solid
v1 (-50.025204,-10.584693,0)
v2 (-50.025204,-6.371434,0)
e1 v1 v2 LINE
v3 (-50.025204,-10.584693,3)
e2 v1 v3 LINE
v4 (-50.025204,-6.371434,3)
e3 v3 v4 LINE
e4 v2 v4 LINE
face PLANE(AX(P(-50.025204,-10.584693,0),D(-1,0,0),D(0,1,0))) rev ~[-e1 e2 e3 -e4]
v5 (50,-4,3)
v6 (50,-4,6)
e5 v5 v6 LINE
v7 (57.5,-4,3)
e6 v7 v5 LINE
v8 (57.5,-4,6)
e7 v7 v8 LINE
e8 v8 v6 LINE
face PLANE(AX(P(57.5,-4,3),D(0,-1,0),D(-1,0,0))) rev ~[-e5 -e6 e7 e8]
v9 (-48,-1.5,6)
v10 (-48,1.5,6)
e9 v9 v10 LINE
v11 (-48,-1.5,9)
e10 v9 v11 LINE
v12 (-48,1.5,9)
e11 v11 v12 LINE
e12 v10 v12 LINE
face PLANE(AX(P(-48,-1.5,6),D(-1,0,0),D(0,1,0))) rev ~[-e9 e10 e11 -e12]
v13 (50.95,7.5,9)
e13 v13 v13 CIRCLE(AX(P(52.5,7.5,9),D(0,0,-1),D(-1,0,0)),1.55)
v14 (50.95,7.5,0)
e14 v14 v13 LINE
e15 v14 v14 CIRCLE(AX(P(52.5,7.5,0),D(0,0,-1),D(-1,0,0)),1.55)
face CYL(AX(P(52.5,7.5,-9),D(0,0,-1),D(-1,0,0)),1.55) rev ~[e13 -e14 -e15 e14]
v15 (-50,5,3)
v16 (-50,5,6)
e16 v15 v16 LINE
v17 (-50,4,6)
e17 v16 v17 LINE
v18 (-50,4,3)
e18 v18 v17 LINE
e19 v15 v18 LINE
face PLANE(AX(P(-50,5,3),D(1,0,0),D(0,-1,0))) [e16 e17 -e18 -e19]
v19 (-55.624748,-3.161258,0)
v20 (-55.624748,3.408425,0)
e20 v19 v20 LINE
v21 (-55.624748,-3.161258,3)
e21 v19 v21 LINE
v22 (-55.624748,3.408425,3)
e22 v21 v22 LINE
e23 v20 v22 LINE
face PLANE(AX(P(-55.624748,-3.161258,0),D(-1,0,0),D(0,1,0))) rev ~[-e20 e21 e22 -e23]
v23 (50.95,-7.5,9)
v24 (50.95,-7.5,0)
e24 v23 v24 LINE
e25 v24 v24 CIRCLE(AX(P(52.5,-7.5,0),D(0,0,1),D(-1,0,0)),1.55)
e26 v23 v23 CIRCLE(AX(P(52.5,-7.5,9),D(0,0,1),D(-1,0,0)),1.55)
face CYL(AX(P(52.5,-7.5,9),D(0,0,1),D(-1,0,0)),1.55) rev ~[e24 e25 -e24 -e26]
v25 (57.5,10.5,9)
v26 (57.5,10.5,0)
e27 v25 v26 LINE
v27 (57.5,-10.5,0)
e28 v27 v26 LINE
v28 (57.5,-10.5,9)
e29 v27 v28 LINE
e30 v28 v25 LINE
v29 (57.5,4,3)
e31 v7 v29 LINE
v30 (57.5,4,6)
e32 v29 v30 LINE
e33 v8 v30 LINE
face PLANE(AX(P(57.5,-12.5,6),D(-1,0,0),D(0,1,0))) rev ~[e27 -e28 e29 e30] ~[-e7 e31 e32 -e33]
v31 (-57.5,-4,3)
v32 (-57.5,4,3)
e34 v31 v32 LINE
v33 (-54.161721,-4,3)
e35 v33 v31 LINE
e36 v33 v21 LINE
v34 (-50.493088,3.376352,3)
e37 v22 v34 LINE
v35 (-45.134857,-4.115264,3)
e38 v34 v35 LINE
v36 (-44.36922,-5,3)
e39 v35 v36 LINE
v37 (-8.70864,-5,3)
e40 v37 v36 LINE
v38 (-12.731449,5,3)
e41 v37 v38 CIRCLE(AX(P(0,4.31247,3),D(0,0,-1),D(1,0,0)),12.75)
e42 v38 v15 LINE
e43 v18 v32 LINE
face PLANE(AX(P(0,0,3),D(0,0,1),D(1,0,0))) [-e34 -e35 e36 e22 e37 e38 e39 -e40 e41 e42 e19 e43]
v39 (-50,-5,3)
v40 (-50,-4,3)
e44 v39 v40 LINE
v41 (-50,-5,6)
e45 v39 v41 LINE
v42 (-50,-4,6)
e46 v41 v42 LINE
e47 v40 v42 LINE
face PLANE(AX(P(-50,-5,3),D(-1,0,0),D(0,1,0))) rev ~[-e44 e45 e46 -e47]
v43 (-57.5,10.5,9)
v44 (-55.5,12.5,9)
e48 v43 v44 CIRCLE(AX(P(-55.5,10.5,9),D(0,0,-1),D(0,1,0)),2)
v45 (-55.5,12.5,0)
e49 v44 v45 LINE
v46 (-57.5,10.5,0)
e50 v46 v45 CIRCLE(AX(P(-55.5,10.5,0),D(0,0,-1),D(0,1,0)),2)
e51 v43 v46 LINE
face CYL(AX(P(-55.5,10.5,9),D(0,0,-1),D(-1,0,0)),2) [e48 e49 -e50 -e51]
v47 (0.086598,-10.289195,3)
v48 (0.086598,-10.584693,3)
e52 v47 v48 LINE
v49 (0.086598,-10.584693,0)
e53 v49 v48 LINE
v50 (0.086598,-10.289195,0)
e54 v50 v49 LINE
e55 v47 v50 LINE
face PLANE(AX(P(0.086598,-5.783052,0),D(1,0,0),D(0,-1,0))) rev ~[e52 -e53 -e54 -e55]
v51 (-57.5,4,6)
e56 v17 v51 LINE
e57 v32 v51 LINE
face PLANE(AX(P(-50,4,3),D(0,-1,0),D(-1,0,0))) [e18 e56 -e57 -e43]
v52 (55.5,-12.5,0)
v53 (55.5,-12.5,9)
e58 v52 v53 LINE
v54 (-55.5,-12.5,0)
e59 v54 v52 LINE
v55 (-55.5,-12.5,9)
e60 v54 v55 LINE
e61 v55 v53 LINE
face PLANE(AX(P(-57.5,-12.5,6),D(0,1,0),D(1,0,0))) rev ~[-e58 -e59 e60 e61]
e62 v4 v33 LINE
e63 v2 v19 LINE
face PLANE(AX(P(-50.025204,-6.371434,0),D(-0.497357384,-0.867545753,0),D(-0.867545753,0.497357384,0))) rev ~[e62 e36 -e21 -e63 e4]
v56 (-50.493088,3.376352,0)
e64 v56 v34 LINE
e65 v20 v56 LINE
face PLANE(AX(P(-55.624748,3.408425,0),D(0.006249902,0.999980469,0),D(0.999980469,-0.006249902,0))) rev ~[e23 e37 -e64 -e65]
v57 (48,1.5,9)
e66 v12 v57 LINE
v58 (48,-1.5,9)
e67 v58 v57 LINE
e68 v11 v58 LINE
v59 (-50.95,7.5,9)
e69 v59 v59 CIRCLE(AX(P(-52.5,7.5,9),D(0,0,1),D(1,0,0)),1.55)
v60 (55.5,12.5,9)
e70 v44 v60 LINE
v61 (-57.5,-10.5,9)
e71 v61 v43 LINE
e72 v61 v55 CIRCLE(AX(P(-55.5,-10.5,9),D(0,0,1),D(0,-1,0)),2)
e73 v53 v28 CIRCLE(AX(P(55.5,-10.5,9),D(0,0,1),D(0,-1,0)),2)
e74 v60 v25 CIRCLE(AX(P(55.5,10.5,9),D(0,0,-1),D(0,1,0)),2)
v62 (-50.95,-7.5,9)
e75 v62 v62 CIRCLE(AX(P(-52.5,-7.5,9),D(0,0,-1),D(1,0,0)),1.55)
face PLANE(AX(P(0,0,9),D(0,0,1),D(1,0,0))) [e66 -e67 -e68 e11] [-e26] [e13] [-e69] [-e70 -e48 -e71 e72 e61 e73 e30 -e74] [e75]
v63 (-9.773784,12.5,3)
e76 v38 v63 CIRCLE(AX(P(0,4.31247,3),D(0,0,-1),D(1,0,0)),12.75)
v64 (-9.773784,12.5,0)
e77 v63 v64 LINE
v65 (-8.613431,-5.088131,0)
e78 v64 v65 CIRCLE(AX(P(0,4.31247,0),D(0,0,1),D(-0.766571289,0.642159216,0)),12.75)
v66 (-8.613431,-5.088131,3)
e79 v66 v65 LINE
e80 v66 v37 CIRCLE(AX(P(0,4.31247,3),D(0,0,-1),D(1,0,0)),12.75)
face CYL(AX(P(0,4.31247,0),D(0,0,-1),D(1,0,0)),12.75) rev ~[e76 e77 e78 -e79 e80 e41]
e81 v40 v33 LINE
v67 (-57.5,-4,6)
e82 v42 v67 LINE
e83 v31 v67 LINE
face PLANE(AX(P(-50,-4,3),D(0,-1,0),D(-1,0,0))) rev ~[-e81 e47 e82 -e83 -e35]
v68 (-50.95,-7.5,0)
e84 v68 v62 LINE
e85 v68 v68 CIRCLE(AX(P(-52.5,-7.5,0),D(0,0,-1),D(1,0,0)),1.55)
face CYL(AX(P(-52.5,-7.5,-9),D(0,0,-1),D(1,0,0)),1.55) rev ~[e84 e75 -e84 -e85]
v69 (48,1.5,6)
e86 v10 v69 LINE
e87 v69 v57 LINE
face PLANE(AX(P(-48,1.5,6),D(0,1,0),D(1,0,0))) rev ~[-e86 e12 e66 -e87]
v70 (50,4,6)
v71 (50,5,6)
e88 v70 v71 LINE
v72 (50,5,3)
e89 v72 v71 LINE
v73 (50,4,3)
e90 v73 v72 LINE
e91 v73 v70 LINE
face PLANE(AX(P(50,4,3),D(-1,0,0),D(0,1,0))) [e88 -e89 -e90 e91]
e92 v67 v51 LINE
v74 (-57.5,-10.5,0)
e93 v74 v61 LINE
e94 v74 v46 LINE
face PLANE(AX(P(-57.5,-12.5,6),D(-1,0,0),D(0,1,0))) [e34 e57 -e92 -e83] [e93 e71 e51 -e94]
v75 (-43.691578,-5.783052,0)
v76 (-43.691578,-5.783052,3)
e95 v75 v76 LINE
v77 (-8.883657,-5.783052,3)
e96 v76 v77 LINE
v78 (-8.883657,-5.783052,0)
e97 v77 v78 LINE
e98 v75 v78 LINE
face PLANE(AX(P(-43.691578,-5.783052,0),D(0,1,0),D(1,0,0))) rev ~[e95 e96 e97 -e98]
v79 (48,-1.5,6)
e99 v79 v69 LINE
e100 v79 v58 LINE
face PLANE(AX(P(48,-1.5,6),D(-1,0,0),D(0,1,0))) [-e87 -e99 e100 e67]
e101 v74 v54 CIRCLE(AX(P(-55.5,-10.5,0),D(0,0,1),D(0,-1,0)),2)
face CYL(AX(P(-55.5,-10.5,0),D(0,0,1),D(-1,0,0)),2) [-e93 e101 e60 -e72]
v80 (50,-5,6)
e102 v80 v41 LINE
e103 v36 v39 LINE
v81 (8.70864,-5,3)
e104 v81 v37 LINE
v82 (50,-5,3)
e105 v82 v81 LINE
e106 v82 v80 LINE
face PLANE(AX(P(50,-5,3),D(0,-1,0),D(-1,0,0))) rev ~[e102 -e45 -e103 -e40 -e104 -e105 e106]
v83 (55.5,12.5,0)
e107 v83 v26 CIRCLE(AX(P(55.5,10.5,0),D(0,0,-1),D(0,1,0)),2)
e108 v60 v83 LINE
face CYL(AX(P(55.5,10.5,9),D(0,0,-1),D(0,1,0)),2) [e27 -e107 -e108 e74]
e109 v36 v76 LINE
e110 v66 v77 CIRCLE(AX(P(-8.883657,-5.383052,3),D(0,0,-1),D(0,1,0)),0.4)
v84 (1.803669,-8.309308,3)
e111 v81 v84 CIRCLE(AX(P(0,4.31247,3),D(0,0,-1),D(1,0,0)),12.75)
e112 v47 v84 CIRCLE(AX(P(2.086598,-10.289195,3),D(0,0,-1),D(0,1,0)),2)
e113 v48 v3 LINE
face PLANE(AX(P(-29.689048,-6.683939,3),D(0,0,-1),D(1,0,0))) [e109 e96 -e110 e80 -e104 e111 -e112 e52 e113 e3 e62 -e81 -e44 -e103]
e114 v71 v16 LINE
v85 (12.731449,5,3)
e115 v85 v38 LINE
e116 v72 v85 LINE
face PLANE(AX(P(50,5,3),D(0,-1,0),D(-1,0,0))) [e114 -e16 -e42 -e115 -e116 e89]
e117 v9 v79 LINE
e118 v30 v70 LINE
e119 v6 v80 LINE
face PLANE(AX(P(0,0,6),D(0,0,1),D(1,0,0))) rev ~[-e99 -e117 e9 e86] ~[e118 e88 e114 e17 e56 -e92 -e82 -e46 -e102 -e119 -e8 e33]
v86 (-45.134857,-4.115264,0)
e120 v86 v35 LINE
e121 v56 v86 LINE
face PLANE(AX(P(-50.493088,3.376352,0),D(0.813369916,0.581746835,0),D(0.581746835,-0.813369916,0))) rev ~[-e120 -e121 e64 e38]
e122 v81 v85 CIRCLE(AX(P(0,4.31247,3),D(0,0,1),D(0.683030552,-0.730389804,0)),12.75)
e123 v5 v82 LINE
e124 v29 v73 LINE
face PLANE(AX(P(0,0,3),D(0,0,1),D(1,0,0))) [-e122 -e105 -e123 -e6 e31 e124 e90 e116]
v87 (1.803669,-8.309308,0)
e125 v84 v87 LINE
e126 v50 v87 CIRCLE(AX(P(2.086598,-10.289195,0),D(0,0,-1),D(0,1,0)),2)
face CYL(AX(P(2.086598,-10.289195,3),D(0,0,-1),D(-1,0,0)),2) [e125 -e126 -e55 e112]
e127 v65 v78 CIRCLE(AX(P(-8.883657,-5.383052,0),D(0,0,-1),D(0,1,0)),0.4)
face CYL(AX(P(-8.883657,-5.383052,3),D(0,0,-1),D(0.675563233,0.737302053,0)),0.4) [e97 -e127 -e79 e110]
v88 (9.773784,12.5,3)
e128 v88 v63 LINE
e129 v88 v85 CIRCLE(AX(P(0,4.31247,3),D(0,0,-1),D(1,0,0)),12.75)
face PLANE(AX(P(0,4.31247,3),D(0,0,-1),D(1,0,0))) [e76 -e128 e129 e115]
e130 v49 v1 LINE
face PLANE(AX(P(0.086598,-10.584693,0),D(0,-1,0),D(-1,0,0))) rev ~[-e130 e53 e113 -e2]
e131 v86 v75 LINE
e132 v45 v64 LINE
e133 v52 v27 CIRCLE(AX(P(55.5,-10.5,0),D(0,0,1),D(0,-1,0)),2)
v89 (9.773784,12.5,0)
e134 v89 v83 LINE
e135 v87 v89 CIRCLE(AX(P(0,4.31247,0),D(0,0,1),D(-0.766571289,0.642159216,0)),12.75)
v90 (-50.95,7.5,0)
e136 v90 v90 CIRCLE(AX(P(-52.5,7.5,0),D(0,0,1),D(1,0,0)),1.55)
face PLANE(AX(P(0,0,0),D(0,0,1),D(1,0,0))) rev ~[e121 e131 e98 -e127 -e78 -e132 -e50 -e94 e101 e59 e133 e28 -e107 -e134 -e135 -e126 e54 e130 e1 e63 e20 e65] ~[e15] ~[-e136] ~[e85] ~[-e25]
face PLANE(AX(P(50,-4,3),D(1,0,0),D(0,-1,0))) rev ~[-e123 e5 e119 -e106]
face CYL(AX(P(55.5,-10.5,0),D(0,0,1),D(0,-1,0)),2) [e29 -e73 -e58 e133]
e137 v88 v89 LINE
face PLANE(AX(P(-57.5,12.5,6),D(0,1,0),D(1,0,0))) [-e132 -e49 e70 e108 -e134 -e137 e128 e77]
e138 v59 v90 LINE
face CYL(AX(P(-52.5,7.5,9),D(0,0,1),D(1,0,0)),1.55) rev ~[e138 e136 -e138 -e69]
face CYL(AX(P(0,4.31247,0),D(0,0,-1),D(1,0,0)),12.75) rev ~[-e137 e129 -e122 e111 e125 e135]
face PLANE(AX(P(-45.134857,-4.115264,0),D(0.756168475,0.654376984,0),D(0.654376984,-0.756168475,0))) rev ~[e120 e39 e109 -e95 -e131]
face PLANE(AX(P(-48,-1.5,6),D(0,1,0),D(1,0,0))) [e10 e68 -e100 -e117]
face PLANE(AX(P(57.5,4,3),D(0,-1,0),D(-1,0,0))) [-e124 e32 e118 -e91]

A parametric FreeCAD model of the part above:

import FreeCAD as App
import Part
import Sketcher
from FreeCAD import Vector
Q = App.Units.Quantity


def edges_at(feature, points):
    """Names of the edges that pass closest to the given points."""
    edges = feature.Shape.Edges
    near = lambda p: min(range(len(edges)), key=lambda i: edges[i].distToShape(Part.Vertex(*p))[0])
    return sorted({f"Edge{near(p) + 1}" for p in points})

doc = App.newDocument("Part")
body = doc.addObject("PartDesign::Body", "Body")

# Sketch on XY plane
sketch1 = body.newObject("Sketcher::SketchObject", "Sketch")
sketch1.AttachmentSupport = (doc.getObject("XY_Plane"), [""])
sketch1.MapMode = "FlatFace"
sketch1.addGeometry([
    Part.LineSegment(Vector(-58, 12, 0), Vector(-58, -12, 0)),
    Part.LineSegment(Vector(-58, -12, 0), Vector(58, -12, 0)),
    Part.LineSegment(Vector(58, -12, 0), Vector(58, 12, 0)),
    Part.LineSegment(Vector(58, 12, 0), Vector(-58, 12, 0)),
], False)
sketch1.addConstraint([
    Sketcher.Constraint("Coincident", 0, 2, 1, 1),
    Sketcher.Constraint("Coincident", 1, 2, 2, 1),
    Sketcher.Constraint("Coincident", 2, 2, 3, 1),
    Sketcher.Constraint("Coincident", 3, 2, 0, 1),
    Sketcher.Constraint("Vertical", 0),
    Sketcher.Constraint("Horizontal", 1),
    Sketcher.Constraint("Vertical", 2),
    Sketcher.Constraint("Horizontal", 3),
    Sketcher.Constraint("Symmetric", 0, 2, 2, 2, -1, 1),
    Sketcher.Constraint("DistanceX", 1, 1, 1, 2, Q("115 mm")),
    Sketcher.Constraint("DistanceY", 0, 2, 0, 1, Q("25 mm")),
])
pad1 = body.newObject("PartDesign::Pad", "Pad")
pad1.Profile = sketch1
pad1.Length = 3

# Sketch on XY plane
sketch2 = body.newObject("Sketcher::SketchObject", "Sketch001")
sketch2.AttachmentSupport = (doc.getObject("XY_Plane"), [""])
sketch2.MapMode = "FlatFace"
sketch2.AttachmentOffset = App.Placement(Vector(0, 0, 3), App.Rotation())
sketch2.addGeometry([
    Part.LineSegment(Vector(57.5, 12.5, 0), Vector(-57.5, 12.5, 0)),  # 0
    Part.LineSegment(Vector(-57.5, 12.5, 0), Vector(-57.5, 4, 0)),  # 1
    Part.LineSegment(Vector(-57.5, 4, 0), Vector(-50, 4, 0)),  # 2
    Part.LineSegment(Vector(-50, 4, 0), Vector(-50, 5, 0)),  # 3
    Part.LineSegment(Vector(-50, 5, 0), Vector(50, 5, 0)),  # 4
    Part.LineSegment(Vector(50, 5, 0), Vector(50, 4, 0)),  # 5
    Part.LineSegment(Vector(50, 4, 0), Vector(57.5, 4, 0)),  # 6
    Part.LineSegment(Vector(57.5, 4, 0), Vector(57.5, 12.5, 0)),  # 7
    Part.LineSegment(Vector(-57.5, -12.5, 0), Vector(57.5, -12.5, 0)),  # 8
    Part.LineSegment(Vector(57.5, -12.5, 0), Vector(57.5, -4, 0)),  # 9
    Part.LineSegment(Vector(57.5, -4, 0), Vector(50, -4, 0)),  # 10
    Part.LineSegment(Vector(50, -4, 0), Vector(50, -5, 0)),  # 11
    Part.LineSegment(Vector(50, -5, 0), Vector(-50, -5, 0)),  # 12
    Part.LineSegment(Vector(-50, -5, 0), Vector(-50, -4, 0)),  # 13
    Part.LineSegment(Vector(-50, -4, 0), Vector(-57.5, -4, 0)),  # 14
    Part.LineSegment(Vector(-57.5, -4, 0), Vector(-57.5, -12.5, 0)),  # 15
], False)
sketch2.addConstraint([
    Sketcher.Constraint("Coincident", 0, 2, 1, 1),
    Sketcher.Constraint("Coincident", 1, 2, 2, 1),
    Sketcher.Constraint("Coincident", 2, 2, 3, 1),
    Sketcher.Constraint("Coincident", 3, 2, 4, 1),
    Sketcher.Constraint("Coincident", 4, 2, 5, 1),
    Sketcher.Constraint("Coincident", 5, 2, 6, 1),
    Sketcher.Constraint("Coincident", 6, 2, 7, 1),
    Sketcher.Constraint("Coincident", 7, 2, 0, 1),
    Sketcher.Constraint("Coincident", 8, 2, 9, 1),
    Sketcher.Constraint("Coincident", 9, 2, 10, 1),
    Sketcher.Constraint("Coincident", 10, 2, 11, 1),
    Sketcher.Constraint("Coincident", 11, 2, 12, 1),
    Sketcher.Constraint("Coincident", 12, 2, 13, 1),
    Sketcher.Constraint("Coincident", 13, 2, 14, 1),
    Sketcher.Constraint("Coincident", 14, 2, 15, 1),
    Sketcher.Constraint("Coincident", 15, 2, 8, 1),
    Sketcher.Constraint("Horizontal", 0),
    Sketcher.Constraint("Vertical", 1),
    Sketcher.Constraint("Horizontal", 2),
    Sketcher.Constraint("Vertical", 3),
    Sketcher.Constraint("Horizontal", 4),
    Sketcher.Constraint("Vertical", 5),
    Sketcher.Constraint("Horizontal", 6),
    Sketcher.Constraint("Vertical", 7),
    Sketcher.Constraint("Horizontal", 8),
    Sketcher.Constraint("Vertical", 9),
    Sketcher.Constraint("Horizontal", 10),
    Sketcher.Constraint("Vertical", 11),
    Sketcher.Constraint("Horizontal", 12),
    Sketcher.Constraint("Vertical", 13),
    Sketcher.Constraint("Horizontal", 14),
    Sketcher.Constraint("Vertical", 15),
    Sketcher.Constraint("Symmetric", 0, 2, 8, 2, -1, 1),
    Sketcher.Constraint("Symmetric", 2, 2, 10, 2, -1, 1),
    Sketcher.Constraint("Symmetric", 4, 2, 12, 2, -1, 1),
    Sketcher.Constraint("Symmetric", 6, 2, 14, 2, -1, 1),
    Sketcher.Constraint("Symmetric", 2, 2, 5, 2, -2),
    Sketcher.Constraint("Vertical", 7, 2, 8, 2),
    Sketcher.Constraint("DistanceX", 0, 2, 0, 1, Q("115 mm")),
    Sketcher.Constraint("DistanceX", 4, 1, 4, 2, Q("100 mm")),
    Sketcher.Constraint("DistanceY", 3, 1, 3, 2, Q("1 mm")),
    Sketcher.Constraint("DistanceY", 1, 2, 1, 1, Q("8.5 mm")),
    Sketcher.Constraint("DistanceY", -1, 1, 1, 2, Q("4 mm")),
])
pad2 = body.newObject("PartDesign::Pad", "Pad001")
pad2.Profile = sketch2
pad2.Length = 3

# Sketch on XY plane
sketch3 = body.newObject("Sketcher::SketchObject", "Sketch002")
sketch3.AttachmentSupport = (doc.getObject("XY_Plane"), [""])
sketch3.MapMode = "FlatFace"
sketch3.AttachmentOffset = App.Placement(Vector(0, 0, 6), App.Rotation())
sketch3.addGeometry([
    Part.LineSegment(Vector(-57.5, 12.5, 0), Vector(-57.5, -12.5, 0)),  # 0
    Part.LineSegment(Vector(-57.5, -12.5, 0), Vector(57.5, -12.5, 0)),  # 1
    Part.LineSegment(Vector(57.5, -12.5, 0), Vector(57.5, 12.5, 0)),  # 2
    Part.LineSegment(Vector(57.5, 12.5, 0), Vector(-57.5, 12.5, 0)),  # 3
    Part.LineSegment(Vector(48, -1.5, 0), Vector(-48, -1.5, 0)),  # 4
    Part.LineSegment(Vector(-48, -1.5, 0), Vector(-48, 1.5, 0)),  # 5
    Part.LineSegment(Vector(-48, 1.5, 0), Vector(48, 1.5, 0)),  # 6
    Part.LineSegment(Vector(48, 1.5, 0), Vector(48, -1.5, 0)),  # 7
], False)
sketch3.addConstraint([
    Sketcher.Constraint("Coincident", 0, 2, 1, 1),
    Sketcher.Constraint("Coincident", 1, 2, 2, 1),
    Sketcher.Constraint("Coincident", 2, 2, 3, 1),
    Sketcher.Constraint("Coincident", 3, 2, 0, 1),
    Sketcher.Constraint("Coincident", 4, 2, 5, 1),
    Sketcher.Constraint("Coincident", 5, 2, 6, 1),
    Sketcher.Constraint("Coincident", 6, 2, 7, 1),
    Sketcher.Constraint("Coincident", 7, 2, 4, 1),
    Sketcher.Constraint("Vertical", 0),
    Sketcher.Constraint("Horizontal", 1),
    Sketcher.Constraint("Vertical", 2),
    Sketcher.Constraint("Horizontal", 3),
    Sketcher.Constraint("Horizontal", 4),
    Sketcher.Constraint("Vertical", 5),
    Sketcher.Constraint("Horizontal", 6),
    Sketcher.Constraint("Vertical", 7),
    Sketcher.Constraint("Symmetric", 0, 2, 2, 2, -1, 1),
    Sketcher.Constraint("Symmetric", 4, 2, 6, 2, -1, 1),
    Sketcher.Constraint("DistanceX", 1, 1, 1, 2, Q("115 mm")),
    Sketcher.Constraint("DistanceX", 4, 2, 4, 1, Q("96 mm")),
    Sketcher.Constraint("DistanceY", 0, 2, 0, 1, Q("25 mm")),
    Sketcher.Constraint("DistanceY", 5, 1, 5, 2, Q("3 mm")),
])
pad3 = body.newObject("PartDesign::Pad", "Pad002")
pad3.Profile = sketch3
pad3.Length = 3

# Sketch on XY plane
sketch4 = body.newObject("Sketcher::SketchObject", "Sketch003")
sketch4.AttachmentSupport = (doc.getObject("XY_Plane"), [""])
sketch4.MapMode = "FlatFace"
sketch4.AttachmentOffset = App.Placement(Vector(0, 0, 9), App.Rotation())
sketch4.addGeometry(Part.Circle(Vector(-52.5, 7.5, 0), Vector(0, 0, 1), 1.6), False)
sketch4.addConstraint([
    Sketcher.Constraint("Diameter", 0, Q("3.1 mm")),
    Sketcher.Constraint("DistanceX", 0, 3, -1, 1, Q("52.5 mm")),
    Sketcher.Constraint("DistanceY", -1, 1, 0, 3, Q("7.5 mm")),
])
pocket1 = body.newObject("PartDesign::Pocket", "Pocket")
pocket1.Profile = sketch4
pocket1.Type = "ThroughAll"
doc.recompute()

polarpattern = body.newObject("PartDesign::PolarPattern", "PolarPattern")
polarpattern.Originals = [pocket1]
polarpattern.Axis = (doc.getObject("Y_Axis"), [""])
polarpattern.Angle = 360
polarpattern.Occurrences = 2
body.Tip = polarpattern
doc.recompute()

polarpattern2 = body.newObject("PartDesign::PolarPattern", "PolarPattern001")
polarpattern2.Originals = [pocket1]
polarpattern2.Axis = (doc.getObject("X_Axis"), [""])
polarpattern2.Angle = 360
polarpattern2.Occurrences = 2
body.Tip = polarpattern2
doc.recompute()

polarpattern3 = body.newObject("PartDesign::PolarPattern", "PolarPattern002")
polarpattern3.Originals = [pocket1]
polarpattern3.Axis = (doc.getObject("Z_Axis"), [""])
polarpattern3.Angle = 360
polarpattern3.Occurrences = 2
body.Tip = polarpattern3
doc.recompute()

fillet = body.newObject("PartDesign::Fillet", "Fillet")
fillet.Base = (polarpattern3, edges_at(polarpattern3, [
    (57.5, 12.5, 4.5),
    (57.5, 12.5, 4.5),
    (57.5, 12.5, 4.5),
    (57.5, -12.5, 4.5),
    (-57.5, 12.5, 4.5),
    (-57.5, -12.5, 4.5),
]))
fillet.Radius = 2

# Sketch on XY plane
sketch5 = body.newObject("Sketcher::SketchObject", "Sketch004")
sketch5.AttachmentSupport = (doc.getObject("XY_Plane"), [""])
sketch5.MapMode = "FlatFace"
sketch5.addGeometry(Part.Circle(Vector(0, 4, 0), Vector(0, 0, 1), 13), False)
sketch5.addConstraint([
    Sketcher.Constraint("PointOnObject", 0, 3, -2),
    Sketcher.Constraint("Diameter", 0, Q("25.5 mm")),
    Sketcher.Constraint("DistanceY", -1, 1, 0, 3, Q("4.31247 mm")),
])
pocket2 = body.newObject("PartDesign::Pocket", "Pocket001")
pocket2.Profile = sketch5
pocket2.Length = 3
pocket2.Reversed = True

# Sketch on XY plane
sketch6 = body.newObject("Sketcher::SketchObject", "Sketch005")
sketch6.AttachmentSupport = (doc.getObject("XY_Plane"), [""])
sketch6.MapMode = "FlatFace"
sketch6.addGeometry([
    Part.LineSegment(Vector(0.1, -10.6, 0), Vector(-50, -10.6, 0)),  # 0
    Part.LineSegment(Vector(-50, -10.6, 0), Vector(-50, -6.4, 0)),  # 1
    Part.LineSegment(Vector(-50, -6.4, 0), Vector(-55.6, -3.2, 0)),  # 2
    Part.LineSegment(Vector(-55.6, -3.2, 0), Vector(-55.6, 3.4, 0)),  # 3
    Part.LineSegment(Vector(-55.6, 3.4, 0), Vector(-50.5, 3.4, 0)),  # 4
    Part.LineSegment(Vector(-50.5, 3.4, 0), Vector(-45.1, -4.1, 0)),  # 5
    Part.LineSegment(Vector(-45.1, -4.1, 0), Vector(-43.7, -5.8, 0)),  # 6
    Part.LineSegment(Vector(-43.7, -5.8, 0), Vector(0.1, -5.8, 0)),  # 7
    Part.LineSegment(Vector(0.1, -5.8, 0), Vector(0.1, -10.6, 0)),  # 8
], False)
sketch6.addConstraint([
    Sketcher.Constraint("Coincident", 0, 2, 1, 1),
    Sketcher.Constraint("Coincident", 1, 2, 2, 1),
    Sketcher.Constraint("Coincident", 2, 2, 3, 1),
    Sketcher.Constraint("Coincident", 3, 2, 4, 1),
    Sketcher.Constraint("Coincident", 4, 2, 5, 1),
    Sketcher.Constraint("Coincident", 5, 2, 6, 1),
    Sketcher.Constraint("Coincident", 6, 2, 7, 1),
    Sketcher.Constraint("Coincident", 7, 2, 8, 1),
    Sketcher.Constraint("Coincident", 8, 2, 0, 1),
    Sketcher.Constraint("Horizontal", 0),
    Sketcher.Constraint("Vertical", 1),
    Sketcher.Constraint("Vertical", 3),
    Sketcher.Constraint("Horizontal", 7),
    Sketcher.Constraint("Vertical", 8),
    Sketcher.Constraint("DistanceY", 1, 1, 1, 2, Q("4.213259 mm")),
    Sketcher.Constraint("DistanceY", 8, 2, 8, 1, Q("4.801641 mm")),
    Sketcher.Constraint("Distance", 4, Q("5.13176 mm")),
    Sketcher.Constraint("Distance", 5, Q("9.210589 mm")),
    Sketcher.Constraint("DistanceX", 0, 2, 0, 1, Q("50.111802 mm")),
    Sketcher.Constraint("DistanceX", 7, 1, 7, 2, Q("43.778176 mm")),
    Sketcher.Constraint("DistanceY", 3, 1, 3, 2, Q("6.569683 mm")),
    Sketcher.Constraint("DistanceY", 2, 2, -1, 1, Q("3.161258 mm")),
    Sketcher.Constraint("DistanceY", -1, 1, 4, 2, Q("3.376352 mm")),
    Sketcher.Constraint("DistanceY", 6, 2, -1, 1, Q("5.783052 mm")),
    Sketcher.Constraint("DistanceY", 1, 2, 5, 2, Q("2.25617 mm")),
    Sketcher.Constraint("DistanceX", 5, 2, 6, 2, Q("1.443279 mm")),
    Sketcher.Constraint("DistanceX", 0, 2, -1, 1, Q("50.025204 mm")),
])
pocket3 = body.newObject("PartDesign::Pocket", "Pocket002")
pocket3.Profile = sketch6
pocket3.Length = 3
pocket3.Reversed = True
doc.recompute()

fillet2 = body.newObject("PartDesign::Fillet", "Fillet001")
fillet2.Base = (pocket3, edges_at(pocket3, [(-7.787, -5.783, 1.5)]))
fillet2.Radius = 0.4
doc.recompute()

fillet3 = body.newObject("PartDesign::Fillet", "Fillet002")
fillet3.Base = (fillet2, edges_at(fillet2, [(0.087, -8.437, 1.5)]))
fillet3.Radius = 2

doc.recompute()
